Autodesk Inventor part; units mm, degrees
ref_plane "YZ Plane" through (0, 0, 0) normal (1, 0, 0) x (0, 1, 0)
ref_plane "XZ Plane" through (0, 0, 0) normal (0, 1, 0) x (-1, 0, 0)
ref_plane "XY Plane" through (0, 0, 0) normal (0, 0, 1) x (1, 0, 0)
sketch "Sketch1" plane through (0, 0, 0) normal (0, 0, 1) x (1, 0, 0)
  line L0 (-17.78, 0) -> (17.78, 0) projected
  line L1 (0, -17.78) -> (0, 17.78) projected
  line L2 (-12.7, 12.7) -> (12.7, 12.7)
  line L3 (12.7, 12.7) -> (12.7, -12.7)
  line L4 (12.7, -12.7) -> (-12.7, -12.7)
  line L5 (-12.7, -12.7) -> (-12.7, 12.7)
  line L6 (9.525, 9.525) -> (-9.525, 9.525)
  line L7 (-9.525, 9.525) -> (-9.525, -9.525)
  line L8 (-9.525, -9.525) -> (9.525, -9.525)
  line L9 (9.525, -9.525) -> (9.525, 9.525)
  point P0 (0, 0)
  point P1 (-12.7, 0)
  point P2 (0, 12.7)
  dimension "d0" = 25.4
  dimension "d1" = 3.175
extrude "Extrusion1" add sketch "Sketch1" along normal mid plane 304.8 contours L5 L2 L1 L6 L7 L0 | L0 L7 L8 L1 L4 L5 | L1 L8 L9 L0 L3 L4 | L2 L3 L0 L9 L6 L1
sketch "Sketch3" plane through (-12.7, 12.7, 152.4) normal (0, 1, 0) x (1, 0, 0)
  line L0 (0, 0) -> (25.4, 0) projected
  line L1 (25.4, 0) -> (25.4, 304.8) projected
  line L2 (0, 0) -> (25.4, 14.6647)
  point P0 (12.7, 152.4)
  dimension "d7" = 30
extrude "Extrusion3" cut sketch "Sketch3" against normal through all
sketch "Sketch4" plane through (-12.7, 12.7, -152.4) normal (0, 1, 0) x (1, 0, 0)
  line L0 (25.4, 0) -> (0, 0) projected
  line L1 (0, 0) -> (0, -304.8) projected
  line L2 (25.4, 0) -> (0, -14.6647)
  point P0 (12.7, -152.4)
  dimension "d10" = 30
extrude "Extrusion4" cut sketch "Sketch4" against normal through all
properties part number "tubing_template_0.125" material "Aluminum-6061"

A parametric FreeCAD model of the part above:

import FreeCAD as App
import Part
import Sketcher

V = App.Vector
Q = App.Units.Quantity


def add_polygon(sketch, points):
    """Adds a closed chain of lines whose ends are joined by coincident constraints."""
    first, n = sketch.GeometryCount, len(points)
    for a, b in zip(points, points[1:] + points[:1]):
        sketch.addGeometry(Part.LineSegment(App.Vector(*a, 0), App.Vector(*b, 0)), False)
    for i in range(n):
        sketch.addConstraint(Sketcher.Constraint("Coincident", first + i, 2, first + (i + 1) % n, 1))

doc = App.newDocument("Part")
body = doc.addObject("PartDesign::Body", "Body")

sketch1 = body.newObject("Sketcher::SketchObject", "Sketch")
sketch1.AttachmentSupport = (doc.getObject("XY_Plane"), [""])
sketch1.MapMode = "FlatFace"
add_polygon(sketch1, [(-13, 13), (-13, -13), (13, -13), (13, 13)])
add_polygon(sketch1, [(-10, 10), (10, 10), (10, -10), (-10, -10)])
sketch1.addConstraint(Sketcher.Constraint("Vertical", 0))
sketch1.addConstraint(Sketcher.Constraint("Horizontal", 1))
sketch1.addConstraint(Sketcher.Constraint("Vertical", 2))
sketch1.addConstraint(Sketcher.Constraint("Horizontal", 3))
sketch1.addConstraint(Sketcher.Constraint("Horizontal", 4))
sketch1.addConstraint(Sketcher.Constraint("Vertical", 5))
sketch1.addConstraint(Sketcher.Constraint("Horizontal", 6))
sketch1.addConstraint(Sketcher.Constraint("Vertical", 7))
sketch1.addConstraint(Sketcher.Constraint("Symmetric", 0, 2, 2, 2, -1, 1))
sketch1.addConstraint(Sketcher.Constraint("Symmetric", 4, 2, 6, 2, -1, 1))
sketch1.addConstraint(Sketcher.Constraint("Equal", 3, 0))
sketch1.addConstraint(Sketcher.Constraint("Equal", 6, 5))
sketch1.addConstraint(Sketcher.Constraint("DistanceX", 1, 1, 1, 2, Q("1 in")))
sketch1.addConstraint(Sketcher.Constraint("DistanceX", 4, 2, 2, 2, Q("0.125 in")))
pad1 = body.newObject("PartDesign::Pad", "Pad")
pad1.Profile = sketch1
pad1.Length = Q("12 in")
pad1.Midplane = True

sketch2 = body.newObject("Sketcher::SketchObject", "Sketch001")
sketch2.AttachmentSupport = (doc.getObject("XZ_Plane"), [""])
sketch2.MapMode = "FlatFace"
sketch2.AttachmentOffset = App.Placement(V(0, 0, -0.5 * 25.4), App.Rotation())
add_polygon(sketch2, [(13, 138), (-13, 152), (13, 152)])
sketch2.addConstraint(Sketcher.Constraint("Horizontal", 1))
sketch2.addConstraint(Sketcher.Constraint("Vertical", 2))
sketch2.addConstraint(Sketcher.Constraint("DistanceX", 1, 1, 1, 2, Q("1 in")))
sketch2.addConstraint(Sketcher.Constraint("DistanceY", -1, 1, 0, 2, Q("6 in")))
sketch2.addConstraint(Sketcher.Constraint("Angle", 0, Q("150 deg")))
sketch2.addConstraint(Sketcher.Constraint("DistanceX", 0, 2, -1, 1, Q("0.5 in")))
pocket1 = body.newObject("PartDesign::Pocket", "Pocket")
pocket1.Profile = sketch2
pocket1.Type = "ThroughAll"
pocket1.Reversed = True

sketch3 = body.newObject("Sketcher::SketchObject", "Sketch002")
sketch3.AttachmentSupport = (doc.getObject("XZ_Plane"), [""])
sketch3.MapMode = "FlatFace"
sketch3.AttachmentOffset = App.Placement(V(0, 0, -0.5 * 25.4), App.Rotation())
add_polygon(sketch3, [(-13, -138), (13, -152), (-13, -152)])
sketch3.addConstraint(Sketcher.Constraint("Horizontal", 1))
sketch3.addConstraint(Sketcher.Constraint("Vertical", 2))
sketch3.addConstraint(Sketcher.Constraint("Angle", 0, Q("-30 deg")))
sketch3.addConstraint(Sketcher.Constraint("DistanceX", 1, 2, 1, 1, Q("1 in")))
sketch3.addConstraint(Sketcher.Constraint("DistanceY", 0, 2, -1, 1, Q("6 in")))
sketch3.addConstraint(Sketcher.Constraint("DistanceX", -1, 1, 0, 2, Q("0.5 in")))
pocket2 = body.newObject("PartDesign::Pocket", "Pocket001")
pocket2.Profile = sketch3
pocket2.Type = "ThroughAll"
pocket2.Reversed = True

doc.recompute()
